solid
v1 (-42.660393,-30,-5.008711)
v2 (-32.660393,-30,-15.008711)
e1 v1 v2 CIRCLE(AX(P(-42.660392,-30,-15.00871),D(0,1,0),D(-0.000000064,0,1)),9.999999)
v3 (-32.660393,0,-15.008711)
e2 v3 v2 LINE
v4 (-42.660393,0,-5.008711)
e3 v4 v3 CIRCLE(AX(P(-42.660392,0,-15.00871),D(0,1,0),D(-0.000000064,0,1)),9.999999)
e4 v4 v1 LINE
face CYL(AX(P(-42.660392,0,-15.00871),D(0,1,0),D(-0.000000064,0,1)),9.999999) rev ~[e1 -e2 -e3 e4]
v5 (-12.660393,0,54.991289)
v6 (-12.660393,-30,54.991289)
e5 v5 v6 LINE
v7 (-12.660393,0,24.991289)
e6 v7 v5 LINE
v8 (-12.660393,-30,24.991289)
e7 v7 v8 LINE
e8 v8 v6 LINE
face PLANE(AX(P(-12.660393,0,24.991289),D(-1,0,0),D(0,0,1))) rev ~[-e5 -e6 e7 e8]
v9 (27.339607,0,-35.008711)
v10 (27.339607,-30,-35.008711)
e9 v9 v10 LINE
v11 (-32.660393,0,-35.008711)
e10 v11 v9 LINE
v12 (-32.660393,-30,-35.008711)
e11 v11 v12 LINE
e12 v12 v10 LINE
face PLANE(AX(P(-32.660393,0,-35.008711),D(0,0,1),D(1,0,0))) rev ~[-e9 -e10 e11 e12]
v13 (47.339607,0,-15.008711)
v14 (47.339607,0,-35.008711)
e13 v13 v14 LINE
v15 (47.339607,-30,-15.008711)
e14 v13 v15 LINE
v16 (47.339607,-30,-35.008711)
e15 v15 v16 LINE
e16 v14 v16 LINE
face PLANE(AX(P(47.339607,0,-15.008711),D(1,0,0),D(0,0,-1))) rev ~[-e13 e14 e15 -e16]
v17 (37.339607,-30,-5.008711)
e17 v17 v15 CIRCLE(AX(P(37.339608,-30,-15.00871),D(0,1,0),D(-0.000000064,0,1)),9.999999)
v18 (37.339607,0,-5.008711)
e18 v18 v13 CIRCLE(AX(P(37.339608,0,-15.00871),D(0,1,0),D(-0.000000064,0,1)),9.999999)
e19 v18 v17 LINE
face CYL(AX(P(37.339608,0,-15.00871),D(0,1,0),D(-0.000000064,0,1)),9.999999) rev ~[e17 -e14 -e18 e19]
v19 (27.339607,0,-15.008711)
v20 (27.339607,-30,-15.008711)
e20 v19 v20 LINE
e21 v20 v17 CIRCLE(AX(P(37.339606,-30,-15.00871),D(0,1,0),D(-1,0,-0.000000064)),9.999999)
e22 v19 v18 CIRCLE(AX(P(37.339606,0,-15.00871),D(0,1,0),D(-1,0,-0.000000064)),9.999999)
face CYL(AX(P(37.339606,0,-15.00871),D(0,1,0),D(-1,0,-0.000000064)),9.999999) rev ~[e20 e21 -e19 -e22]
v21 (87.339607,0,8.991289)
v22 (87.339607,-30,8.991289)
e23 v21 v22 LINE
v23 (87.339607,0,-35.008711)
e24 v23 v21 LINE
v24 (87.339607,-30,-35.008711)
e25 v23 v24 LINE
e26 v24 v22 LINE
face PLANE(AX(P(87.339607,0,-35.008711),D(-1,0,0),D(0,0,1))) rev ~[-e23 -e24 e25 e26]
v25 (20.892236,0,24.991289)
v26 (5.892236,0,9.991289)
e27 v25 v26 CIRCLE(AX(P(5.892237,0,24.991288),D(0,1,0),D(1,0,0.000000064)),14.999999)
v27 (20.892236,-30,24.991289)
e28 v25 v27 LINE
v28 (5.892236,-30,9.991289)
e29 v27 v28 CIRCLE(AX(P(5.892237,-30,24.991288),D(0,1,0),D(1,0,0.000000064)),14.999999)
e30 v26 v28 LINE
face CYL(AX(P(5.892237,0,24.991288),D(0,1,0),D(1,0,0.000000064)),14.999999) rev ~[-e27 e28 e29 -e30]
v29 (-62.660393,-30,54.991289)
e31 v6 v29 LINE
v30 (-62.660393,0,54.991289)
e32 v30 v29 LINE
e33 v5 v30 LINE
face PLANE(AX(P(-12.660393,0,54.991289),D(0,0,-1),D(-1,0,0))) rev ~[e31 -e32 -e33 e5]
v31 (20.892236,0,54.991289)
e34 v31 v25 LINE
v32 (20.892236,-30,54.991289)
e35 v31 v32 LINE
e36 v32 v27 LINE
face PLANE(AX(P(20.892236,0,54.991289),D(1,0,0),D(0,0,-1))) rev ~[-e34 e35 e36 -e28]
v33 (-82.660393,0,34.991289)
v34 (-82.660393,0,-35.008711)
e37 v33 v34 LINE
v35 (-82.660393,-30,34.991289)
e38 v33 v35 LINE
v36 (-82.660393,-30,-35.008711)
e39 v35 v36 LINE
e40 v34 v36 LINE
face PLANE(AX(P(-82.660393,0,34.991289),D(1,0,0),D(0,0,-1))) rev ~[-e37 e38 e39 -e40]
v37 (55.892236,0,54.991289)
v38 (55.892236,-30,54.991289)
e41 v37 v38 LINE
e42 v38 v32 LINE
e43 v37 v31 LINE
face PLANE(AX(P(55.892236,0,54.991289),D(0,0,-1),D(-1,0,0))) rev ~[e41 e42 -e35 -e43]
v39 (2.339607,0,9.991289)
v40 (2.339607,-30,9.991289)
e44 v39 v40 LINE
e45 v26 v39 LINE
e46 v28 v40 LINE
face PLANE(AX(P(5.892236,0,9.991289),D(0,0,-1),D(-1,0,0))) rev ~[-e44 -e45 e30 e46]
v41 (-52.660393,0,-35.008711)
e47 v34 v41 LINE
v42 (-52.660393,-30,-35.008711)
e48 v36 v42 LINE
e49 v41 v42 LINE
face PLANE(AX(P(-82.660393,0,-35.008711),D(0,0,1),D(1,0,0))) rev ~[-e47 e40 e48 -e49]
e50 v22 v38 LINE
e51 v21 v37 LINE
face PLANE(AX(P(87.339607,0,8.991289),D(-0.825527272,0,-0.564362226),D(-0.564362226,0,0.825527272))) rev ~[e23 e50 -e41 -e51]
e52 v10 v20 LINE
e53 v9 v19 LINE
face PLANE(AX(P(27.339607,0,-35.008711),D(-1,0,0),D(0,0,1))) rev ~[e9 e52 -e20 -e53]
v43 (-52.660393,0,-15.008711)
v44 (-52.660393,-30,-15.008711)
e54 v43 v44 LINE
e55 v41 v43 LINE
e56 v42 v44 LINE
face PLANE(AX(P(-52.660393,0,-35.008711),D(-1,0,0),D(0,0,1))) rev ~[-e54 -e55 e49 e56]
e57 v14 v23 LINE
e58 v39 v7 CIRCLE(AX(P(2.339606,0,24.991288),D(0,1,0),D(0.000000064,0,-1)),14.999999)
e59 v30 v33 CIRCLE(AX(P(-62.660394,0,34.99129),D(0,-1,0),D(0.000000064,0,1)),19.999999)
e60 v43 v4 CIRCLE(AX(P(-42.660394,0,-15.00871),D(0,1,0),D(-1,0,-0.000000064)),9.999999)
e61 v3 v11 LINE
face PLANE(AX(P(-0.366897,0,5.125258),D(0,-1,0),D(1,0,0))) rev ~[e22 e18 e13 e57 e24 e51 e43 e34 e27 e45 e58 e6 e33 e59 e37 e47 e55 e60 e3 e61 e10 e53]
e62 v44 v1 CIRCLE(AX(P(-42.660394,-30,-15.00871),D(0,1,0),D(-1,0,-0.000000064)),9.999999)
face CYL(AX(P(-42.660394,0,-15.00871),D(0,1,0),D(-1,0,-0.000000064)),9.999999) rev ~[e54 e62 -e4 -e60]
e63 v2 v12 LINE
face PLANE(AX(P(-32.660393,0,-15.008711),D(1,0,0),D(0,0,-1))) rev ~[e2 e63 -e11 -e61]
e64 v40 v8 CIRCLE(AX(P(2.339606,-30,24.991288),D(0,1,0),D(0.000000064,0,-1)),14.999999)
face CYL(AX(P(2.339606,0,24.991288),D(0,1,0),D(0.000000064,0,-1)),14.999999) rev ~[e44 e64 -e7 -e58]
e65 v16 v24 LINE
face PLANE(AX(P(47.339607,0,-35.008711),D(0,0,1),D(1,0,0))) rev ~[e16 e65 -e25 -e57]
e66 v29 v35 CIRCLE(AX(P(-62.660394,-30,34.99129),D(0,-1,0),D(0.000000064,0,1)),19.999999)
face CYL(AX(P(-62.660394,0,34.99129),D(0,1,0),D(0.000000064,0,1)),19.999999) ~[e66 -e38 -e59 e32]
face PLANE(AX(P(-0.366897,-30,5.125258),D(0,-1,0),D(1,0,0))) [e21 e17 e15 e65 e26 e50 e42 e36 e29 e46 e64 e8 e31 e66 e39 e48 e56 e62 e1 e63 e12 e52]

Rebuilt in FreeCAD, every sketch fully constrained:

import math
import FreeCAD as App
import Part
import Sketcher

doc = App.newDocument("Part")
body = doc.addObject("PartDesign::Body", "Body")

# Sketch on XZ plane
sketch1 = body.newObject("Sketcher::SketchObject", "Sketch")
sketch1.AttachmentSupport = (doc.getObject("XZ_Plane"), [""])
sketch1.MapMode = "FlatFace"
sketch1.addGeometry([
    Part.LineSegment(App.Vector(-82.7, 35, 0), App.Vector(-82.7, -35, 0)),  # 0
    Part.LineSegment(App.Vector(-82.7, -35, 0), App.Vector(-52.7, -35, 0)),  # 1
    Part.LineSegment(App.Vector(-52.7, -35, 0), App.Vector(-52.7, -15, 0)),  # 2
    Part.ArcOfCircle(Part.Circle(App.Vector(-42.7, -15, 0), App.Vector(0, 0, 1), 10), math.radians(90), math.radians(180)),  # 3
    Part.ArcOfCircle(Part.Circle(App.Vector(-42.7, -15, 0), App.Vector(0, 0, 1), 10), math.radians(0), math.radians(90)),  # 4
    Part.LineSegment(App.Vector(-32.7, -15, 0), App.Vector(-32.7, -35, 0)),  # 5
    Part.LineSegment(App.Vector(-32.7, -35, 0), App.Vector(27.3, -35, 0)),  # 6
    Part.LineSegment(App.Vector(27.3, -35, 0), App.Vector(27.3, -15, 0)),  # 7
    Part.ArcOfCircle(Part.Circle(App.Vector(37.3, -15, 0), App.Vector(0, 0, 1), 10), math.radians(90), math.radians(180)),  # 8
    Part.ArcOfCircle(Part.Circle(App.Vector(37.3, -15, 0), App.Vector(0, 0, 1), 10), math.radians(0), math.radians(90)),  # 9
    Part.LineSegment(App.Vector(47.3, -15, 0), App.Vector(47.3, -35, 0)),  # 10
    Part.LineSegment(App.Vector(47.3, -35, 0), App.Vector(87.3, -35, 0)),  # 11
    Part.LineSegment(App.Vector(87.3, -35, 0), App.Vector(87.3, 9, 0)),  # 12
    Part.LineSegment(App.Vector(87.3, 9, 0), App.Vector(55.9, 55, 0)),  # 13
    Part.LineSegment(App.Vector(55.9, 55, 0), App.Vector(20.9, 55, 0)),  # 14
    Part.LineSegment(App.Vector(20.9, 55, 0), App.Vector(20.9, 25, 0)),  # 15
    Part.ArcOfCircle(Part.Circle(App.Vector(5.9, 25, 0), App.Vector(0, 0, 1), 15), math.radians(-90), math.radians(0)),  # 16
    Part.LineSegment(App.Vector(5.9, 10, 0), App.Vector(2.3, 10, 0)),  # 17
    Part.ArcOfCircle(Part.Circle(App.Vector(2.3, 25, 0), App.Vector(0, 0, 1), 15), math.radians(180), math.radians(270)),  # 18
    Part.LineSegment(App.Vector(-12.7, 25, 0), App.Vector(-12.7, 55, 0)),  # 19
    Part.LineSegment(App.Vector(-12.7, 55, 0), App.Vector(-62.7, 55, 0)),  # 20
    Part.ArcOfCircle(Part.Circle(App.Vector(-62.7, 35, 0), App.Vector(0, 0, 1), 20), math.radians(90), math.radians(180)),  # 21
], False)
sketch1.addConstraint([
    Sketcher.Constraint("Coincident", 0, 2, 1, 1),
    Sketcher.Constraint("Coincident", 1, 2, 2, 1),
    Sketcher.Constraint("Tangent", 2, 2, 3, 2),
    Sketcher.Constraint("Tangent", 3, 1, 4, 2),
    Sketcher.Constraint("Tangent", 4, 1, 5, 1),
    Sketcher.Constraint("Coincident", 5, 2, 6, 1),
    Sketcher.Constraint("Coincident", 6, 2, 7, 1),
    Sketcher.Constraint("Tangent", 7, 2, 8, 2),
    Sketcher.Constraint("Tangent", 8, 1, 9, 2),
    Sketcher.Constraint("Tangent", 9, 1, 10, 1),
    Sketcher.Constraint("Coincident", 10, 2, 11, 1),
    Sketcher.Constraint("Coincident", 11, 2, 12, 1),
    Sketcher.Constraint("Coincident", 12, 2, 13, 1),
    Sketcher.Constraint("Coincident", 13, 2, 14, 1),
    Sketcher.Constraint("Coincident", 14, 2, 15, 1),
    Sketcher.Constraint("Tangent", 15, 2, 16, 2),
    Sketcher.Constraint("Tangent", 16, 1, 17, 1),
    Sketcher.Constraint("Tangent", 17, 2, 18, 2),
    Sketcher.Constraint("Tangent", 18, 1, 19, 1),
    Sketcher.Constraint("Coincident", 19, 2, 20, 1),
    Sketcher.Constraint("Tangent", 20, 2, 21, 1),
    Sketcher.Constraint("Tangent", 21, 2, 0, 1),
    Sketcher.Constraint("Vertical", 0),
    Sketcher.Constraint("Horizontal", 1),
    Sketcher.Constraint("Vertical", 2),
    Sketcher.Constraint("Vertical", 5),
    Sketcher.Constraint("Horizontal", 6),
    Sketcher.Constraint("Vertical", 7),
    Sketcher.Constraint("Vertical", 10),
    Sketcher.Constraint("Horizontal", 11),
    Sketcher.Constraint("Vertical", 12),
    Sketcher.Constraint("Horizontal", 14),
    Sketcher.Constraint("Vertical", 15),
    Sketcher.Constraint("Horizontal", 17),
    Sketcher.Constraint("Vertical", 19),
    Sketcher.Constraint("Horizontal", 20),
    Sketcher.Constraint("Equal", 3, 4),
    Sketcher.Constraint("Equal", 4, 8),
    Sketcher.Constraint("Equal", 8, 9),
    Sketcher.Constraint("Equal", 16, 18),
    Sketcher.Constraint("Horizontal", 4, 3, 8, 3),
    Sketcher.Constraint("Horizontal", 1, 2, 5, 2),
    Sketcher.Constraint("Horizontal", 6, 2, 10, 2),
    Sketcher.Constraint("Horizontal", 14, 2, 19, 2),
    Sketcher.Constraint("Vertical", 4, 3, 3, 1),
    Sketcher.Constraint("Vertical", 9, 3, 8, 1),
    Sketcher.Constraint("Equal", 1, 15),
    Sketcher.Constraint("Radius", 3, 9.999999),
    Sketcher.Constraint("Radius", 16, 14.999999),
    Sketcher.Constraint("Radius", 21, 19.999999),
    Sketcher.Constraint("DistanceX", 1, 1, 1, 2, 30.0),
    Sketcher.Constraint("DistanceX", 6, 1, 6, 2, 60.0),
    Sketcher.Constraint("DistanceX", 11, 1, 11, 2, 40.0),
    Sketcher.Constraint("DistanceX", 14, 2, 14, 1, 35.0),
    Sketcher.Constraint("DistanceX", 20, 2, 20, 1, 50.0),
    Sketcher.Constraint("DistanceY", 0, 2, 0, 1, 70.0),
    Sketcher.Constraint("DistanceY", 2, 1, 2, 2, 20.0),
    Sketcher.Constraint("DistanceY", 12, 1, 12, 2, 44.0),
    Sketcher.Constraint("DistanceX", 17, 2, 17, 1, 3.552629),
    Sketcher.Constraint("DistanceY", 3, 3, -1, 1, 15.00871),
    Sketcher.Constraint("DistanceX", 3, 3, -1, 1, 42.660394),
])
pad1 = body.newObject("PartDesign::Pad", "Pad")
pad1.Profile = sketch1
pad1.Length = 30

doc.recompute()
